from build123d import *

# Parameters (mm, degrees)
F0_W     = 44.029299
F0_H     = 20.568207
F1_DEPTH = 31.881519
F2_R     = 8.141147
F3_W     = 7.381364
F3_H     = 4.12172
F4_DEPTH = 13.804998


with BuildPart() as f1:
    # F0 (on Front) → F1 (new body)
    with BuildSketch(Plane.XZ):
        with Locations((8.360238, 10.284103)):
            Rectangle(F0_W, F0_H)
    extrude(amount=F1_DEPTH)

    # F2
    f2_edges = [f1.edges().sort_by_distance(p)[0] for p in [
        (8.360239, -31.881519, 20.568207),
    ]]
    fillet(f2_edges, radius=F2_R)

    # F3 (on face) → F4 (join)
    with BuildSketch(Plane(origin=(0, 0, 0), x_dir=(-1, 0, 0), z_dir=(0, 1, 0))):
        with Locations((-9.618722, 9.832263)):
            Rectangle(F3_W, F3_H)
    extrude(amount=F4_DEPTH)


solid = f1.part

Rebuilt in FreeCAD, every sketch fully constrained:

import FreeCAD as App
import Part
import Sketcher

V = App.Vector
Q = App.Units.Quantity


def edges_at(feature, points):
    """Names of the edges that pass closest to the given points."""
    edges = feature.Shape.Edges
    near = lambda p: min(range(len(edges)), key=lambda i: edges[i].distToShape(Part.Vertex(*p))[0])
    return sorted({f"Edge{near(p) + 1}" for p in points})


def add_polygon(sketch, points):
    """Adds a closed chain of lines whose ends are joined by coincident constraints."""
    first, n = sketch.GeometryCount, len(points)
    for a, b in zip(points, points[1:] + points[:1]):
        sketch.addGeometry(Part.LineSegment(App.Vector(*a, 0), App.Vector(*b, 0)), False)
    for i in range(n):
        sketch.addConstraint(Sketcher.Constraint("Coincident", first + i, 2, first + (i + 1) % n, 1))

doc = App.newDocument("Part")
body = doc.addObject("PartDesign::Body", "Body")

sketch1 = doc.addObject("Sketcher::SketchObject", "Sketch")
body.addObject(sketch1)
sketch1.AttachmentSupport = (doc.XZ_Plane, [""])
sketch1.MapMode = "FlatFace"
add_polygon(sketch1, [(-14, 21), (-14, 0), (30, 0), (30, 21)])
sketch1.addConstraint([
    Sketcher.Constraint("Vertical", 0),
    Sketcher.Constraint("Horizontal", 1),
    Sketcher.Constraint("Vertical", 2),
    Sketcher.Constraint("Horizontal", 3),
    Sketcher.Constraint("PointOnObject", 0, 2, -1),
    Sketcher.Constraint("DistanceX", 1, 1, 1, 2, Q("44.029299 mm")),
    Sketcher.Constraint("DistanceY", 0, 2, 0, 1, Q("20.568207 mm")),
    Sketcher.Constraint("DistanceX", 0, 2, -1, 1, Q("13.654412 mm")),
])
pad1 = doc.addObject("PartDesign::Pad", "Pad")
body.addObject(pad1)
pad1.Profile = sketch1
pad1.Length = 31.881519
doc.recompute()

fillet = doc.addObject("PartDesign::Fillet", "Fillet")
body.addObject(fillet)
fillet.Base = (pad1, edges_at(pad1, [(8.36, -31.882, 20.568)]))
fillet.Radius = 8.141147

sketch2 = doc.addObject("Sketcher::SketchObject", "Sketch001")
body.addObject(sketch2)
sketch2.AttachmentSupport = (doc.XZ_Plane, [""])
sketch2.MapMode = "FlatFace"
add_polygon(sketch2, [(13.3, 11.9), (13.3, 7.8), (5.9, 7.8), (5.9, 11.9)])
sketch2.addConstraint([
    Sketcher.Constraint("Vertical", 0),
    Sketcher.Constraint("Horizontal", 1),
    Sketcher.Constraint("Vertical", 2),
    Sketcher.Constraint("Horizontal", 3),
    Sketcher.Constraint("DistanceY", 0, 2, 0, 1, Q("4.12172 mm")),
    Sketcher.Constraint("DistanceX", 1, 2, 1, 1, Q("7.381364 mm")),
    Sketcher.Constraint("DistanceX", -1, 1, 1, 2, Q("5.92804 mm")),
    Sketcher.Constraint("DistanceY", -1, 1, 0, 2, Q("7.771403 mm")),
])
pad2 = doc.addObject("PartDesign::Pad", "Pad001")
body.addObject(pad2)
pad2.Profile = sketch2
pad2.Length = 13.804998
pad2.Reversed = True

doc.recompute()
